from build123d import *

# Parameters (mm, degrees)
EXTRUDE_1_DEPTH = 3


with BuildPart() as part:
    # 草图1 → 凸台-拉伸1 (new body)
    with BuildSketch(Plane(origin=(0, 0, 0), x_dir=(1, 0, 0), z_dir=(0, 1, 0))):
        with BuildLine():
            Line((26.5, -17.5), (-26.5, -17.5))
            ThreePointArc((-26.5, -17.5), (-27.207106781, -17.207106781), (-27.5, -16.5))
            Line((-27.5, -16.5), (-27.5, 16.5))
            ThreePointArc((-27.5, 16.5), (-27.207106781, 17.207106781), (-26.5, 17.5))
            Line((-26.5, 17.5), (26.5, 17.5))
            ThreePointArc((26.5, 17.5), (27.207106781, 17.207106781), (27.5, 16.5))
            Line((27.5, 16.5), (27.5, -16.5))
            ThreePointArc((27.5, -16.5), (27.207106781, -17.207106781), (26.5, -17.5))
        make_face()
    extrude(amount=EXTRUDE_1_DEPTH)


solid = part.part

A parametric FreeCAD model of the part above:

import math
import FreeCAD as App
import Part
import Sketcher
from FreeCAD import Vector

doc = App.newDocument("Part")
body = doc.addObject("PartDesign::Body", "Body")

# Sketch on XZ plane
sketch1 = body.newObject("Sketcher::SketchObject", "Sketch")
sketch1.AttachmentSupport = (doc.getObject("XZ_Plane"), [""])
sketch1.MapMode = "FlatFace"
sketch1.addGeometry([
    Part.LineSegment(Vector(-26.5, 17.5, 0), Vector(26.5, 17.5, 0)),  # 0
    Part.ArcOfCircle(Part.Circle(Vector(26.5, 16.5, 0), Vector(0, 0, 1), 1), math.radians(0), math.radians(90)),  # 1
    Part.LineSegment(Vector(27.5, 16.5, 0), Vector(27.5, -16.5, 0)),  # 2
    Part.ArcOfCircle(Part.Circle(Vector(26.5, -16.5, 0), Vector(0, 0, 1), 1), math.radians(-90), math.radians(0)),  # 3
    Part.LineSegment(Vector(26.5, -17.5, 0), Vector(-26.5, -17.5, 0)),  # 4
    Part.ArcOfCircle(Part.Circle(Vector(-26.5, -16.5, 0), Vector(0, 0, 1), 1), math.radians(-180), math.radians(-90)),  # 5
    Part.LineSegment(Vector(-27.5, -16.5, 0), Vector(-27.5, 16.5, 0)),  # 6
    Part.ArcOfCircle(Part.Circle(Vector(-26.5, 16.5, 0), Vector(0, 0, 1), 1), math.radians(90), math.radians(180)),  # 7
], False)
sketch1.addConstraint([
    Sketcher.Constraint("Tangent", 0, 2, 1, 2),
    Sketcher.Constraint("Tangent", 1, 1, 2, 1),
    Sketcher.Constraint("Tangent", 2, 2, 3, 2),
    Sketcher.Constraint("Tangent", 3, 1, 4, 1),
    Sketcher.Constraint("Tangent", 4, 2, 5, 2),
    Sketcher.Constraint("Tangent", 5, 1, 6, 1),
    Sketcher.Constraint("Tangent", 6, 2, 7, 2),
    Sketcher.Constraint("Tangent", 7, 1, 0, 1),
    Sketcher.Constraint("Horizontal", 0),
    Sketcher.Constraint("Vertical", 2),
    Sketcher.Constraint("Horizontal", 4),
    Sketcher.Constraint("Vertical", 6),
    Sketcher.Constraint("Equal", 1, 3),
    Sketcher.Constraint("Equal", 3, 5),
    Sketcher.Constraint("Equal", 5, 7),
    Sketcher.Constraint("Symmetric", 1, 3, 5, 3, -1, 1),
    Sketcher.Constraint("Radius", 1, 1.0),
    Sketcher.Constraint("DistanceX", 0, 1, 0, 2, 53.0),
    Sketcher.Constraint("DistanceY", 2, 2, 2, 1, 33.0),
])
pad1 = body.newObject("PartDesign::Pad", "Pad")
pad1.Profile = sketch1
pad1.Length = 3
pad1.Reversed = True

doc.recompute()
